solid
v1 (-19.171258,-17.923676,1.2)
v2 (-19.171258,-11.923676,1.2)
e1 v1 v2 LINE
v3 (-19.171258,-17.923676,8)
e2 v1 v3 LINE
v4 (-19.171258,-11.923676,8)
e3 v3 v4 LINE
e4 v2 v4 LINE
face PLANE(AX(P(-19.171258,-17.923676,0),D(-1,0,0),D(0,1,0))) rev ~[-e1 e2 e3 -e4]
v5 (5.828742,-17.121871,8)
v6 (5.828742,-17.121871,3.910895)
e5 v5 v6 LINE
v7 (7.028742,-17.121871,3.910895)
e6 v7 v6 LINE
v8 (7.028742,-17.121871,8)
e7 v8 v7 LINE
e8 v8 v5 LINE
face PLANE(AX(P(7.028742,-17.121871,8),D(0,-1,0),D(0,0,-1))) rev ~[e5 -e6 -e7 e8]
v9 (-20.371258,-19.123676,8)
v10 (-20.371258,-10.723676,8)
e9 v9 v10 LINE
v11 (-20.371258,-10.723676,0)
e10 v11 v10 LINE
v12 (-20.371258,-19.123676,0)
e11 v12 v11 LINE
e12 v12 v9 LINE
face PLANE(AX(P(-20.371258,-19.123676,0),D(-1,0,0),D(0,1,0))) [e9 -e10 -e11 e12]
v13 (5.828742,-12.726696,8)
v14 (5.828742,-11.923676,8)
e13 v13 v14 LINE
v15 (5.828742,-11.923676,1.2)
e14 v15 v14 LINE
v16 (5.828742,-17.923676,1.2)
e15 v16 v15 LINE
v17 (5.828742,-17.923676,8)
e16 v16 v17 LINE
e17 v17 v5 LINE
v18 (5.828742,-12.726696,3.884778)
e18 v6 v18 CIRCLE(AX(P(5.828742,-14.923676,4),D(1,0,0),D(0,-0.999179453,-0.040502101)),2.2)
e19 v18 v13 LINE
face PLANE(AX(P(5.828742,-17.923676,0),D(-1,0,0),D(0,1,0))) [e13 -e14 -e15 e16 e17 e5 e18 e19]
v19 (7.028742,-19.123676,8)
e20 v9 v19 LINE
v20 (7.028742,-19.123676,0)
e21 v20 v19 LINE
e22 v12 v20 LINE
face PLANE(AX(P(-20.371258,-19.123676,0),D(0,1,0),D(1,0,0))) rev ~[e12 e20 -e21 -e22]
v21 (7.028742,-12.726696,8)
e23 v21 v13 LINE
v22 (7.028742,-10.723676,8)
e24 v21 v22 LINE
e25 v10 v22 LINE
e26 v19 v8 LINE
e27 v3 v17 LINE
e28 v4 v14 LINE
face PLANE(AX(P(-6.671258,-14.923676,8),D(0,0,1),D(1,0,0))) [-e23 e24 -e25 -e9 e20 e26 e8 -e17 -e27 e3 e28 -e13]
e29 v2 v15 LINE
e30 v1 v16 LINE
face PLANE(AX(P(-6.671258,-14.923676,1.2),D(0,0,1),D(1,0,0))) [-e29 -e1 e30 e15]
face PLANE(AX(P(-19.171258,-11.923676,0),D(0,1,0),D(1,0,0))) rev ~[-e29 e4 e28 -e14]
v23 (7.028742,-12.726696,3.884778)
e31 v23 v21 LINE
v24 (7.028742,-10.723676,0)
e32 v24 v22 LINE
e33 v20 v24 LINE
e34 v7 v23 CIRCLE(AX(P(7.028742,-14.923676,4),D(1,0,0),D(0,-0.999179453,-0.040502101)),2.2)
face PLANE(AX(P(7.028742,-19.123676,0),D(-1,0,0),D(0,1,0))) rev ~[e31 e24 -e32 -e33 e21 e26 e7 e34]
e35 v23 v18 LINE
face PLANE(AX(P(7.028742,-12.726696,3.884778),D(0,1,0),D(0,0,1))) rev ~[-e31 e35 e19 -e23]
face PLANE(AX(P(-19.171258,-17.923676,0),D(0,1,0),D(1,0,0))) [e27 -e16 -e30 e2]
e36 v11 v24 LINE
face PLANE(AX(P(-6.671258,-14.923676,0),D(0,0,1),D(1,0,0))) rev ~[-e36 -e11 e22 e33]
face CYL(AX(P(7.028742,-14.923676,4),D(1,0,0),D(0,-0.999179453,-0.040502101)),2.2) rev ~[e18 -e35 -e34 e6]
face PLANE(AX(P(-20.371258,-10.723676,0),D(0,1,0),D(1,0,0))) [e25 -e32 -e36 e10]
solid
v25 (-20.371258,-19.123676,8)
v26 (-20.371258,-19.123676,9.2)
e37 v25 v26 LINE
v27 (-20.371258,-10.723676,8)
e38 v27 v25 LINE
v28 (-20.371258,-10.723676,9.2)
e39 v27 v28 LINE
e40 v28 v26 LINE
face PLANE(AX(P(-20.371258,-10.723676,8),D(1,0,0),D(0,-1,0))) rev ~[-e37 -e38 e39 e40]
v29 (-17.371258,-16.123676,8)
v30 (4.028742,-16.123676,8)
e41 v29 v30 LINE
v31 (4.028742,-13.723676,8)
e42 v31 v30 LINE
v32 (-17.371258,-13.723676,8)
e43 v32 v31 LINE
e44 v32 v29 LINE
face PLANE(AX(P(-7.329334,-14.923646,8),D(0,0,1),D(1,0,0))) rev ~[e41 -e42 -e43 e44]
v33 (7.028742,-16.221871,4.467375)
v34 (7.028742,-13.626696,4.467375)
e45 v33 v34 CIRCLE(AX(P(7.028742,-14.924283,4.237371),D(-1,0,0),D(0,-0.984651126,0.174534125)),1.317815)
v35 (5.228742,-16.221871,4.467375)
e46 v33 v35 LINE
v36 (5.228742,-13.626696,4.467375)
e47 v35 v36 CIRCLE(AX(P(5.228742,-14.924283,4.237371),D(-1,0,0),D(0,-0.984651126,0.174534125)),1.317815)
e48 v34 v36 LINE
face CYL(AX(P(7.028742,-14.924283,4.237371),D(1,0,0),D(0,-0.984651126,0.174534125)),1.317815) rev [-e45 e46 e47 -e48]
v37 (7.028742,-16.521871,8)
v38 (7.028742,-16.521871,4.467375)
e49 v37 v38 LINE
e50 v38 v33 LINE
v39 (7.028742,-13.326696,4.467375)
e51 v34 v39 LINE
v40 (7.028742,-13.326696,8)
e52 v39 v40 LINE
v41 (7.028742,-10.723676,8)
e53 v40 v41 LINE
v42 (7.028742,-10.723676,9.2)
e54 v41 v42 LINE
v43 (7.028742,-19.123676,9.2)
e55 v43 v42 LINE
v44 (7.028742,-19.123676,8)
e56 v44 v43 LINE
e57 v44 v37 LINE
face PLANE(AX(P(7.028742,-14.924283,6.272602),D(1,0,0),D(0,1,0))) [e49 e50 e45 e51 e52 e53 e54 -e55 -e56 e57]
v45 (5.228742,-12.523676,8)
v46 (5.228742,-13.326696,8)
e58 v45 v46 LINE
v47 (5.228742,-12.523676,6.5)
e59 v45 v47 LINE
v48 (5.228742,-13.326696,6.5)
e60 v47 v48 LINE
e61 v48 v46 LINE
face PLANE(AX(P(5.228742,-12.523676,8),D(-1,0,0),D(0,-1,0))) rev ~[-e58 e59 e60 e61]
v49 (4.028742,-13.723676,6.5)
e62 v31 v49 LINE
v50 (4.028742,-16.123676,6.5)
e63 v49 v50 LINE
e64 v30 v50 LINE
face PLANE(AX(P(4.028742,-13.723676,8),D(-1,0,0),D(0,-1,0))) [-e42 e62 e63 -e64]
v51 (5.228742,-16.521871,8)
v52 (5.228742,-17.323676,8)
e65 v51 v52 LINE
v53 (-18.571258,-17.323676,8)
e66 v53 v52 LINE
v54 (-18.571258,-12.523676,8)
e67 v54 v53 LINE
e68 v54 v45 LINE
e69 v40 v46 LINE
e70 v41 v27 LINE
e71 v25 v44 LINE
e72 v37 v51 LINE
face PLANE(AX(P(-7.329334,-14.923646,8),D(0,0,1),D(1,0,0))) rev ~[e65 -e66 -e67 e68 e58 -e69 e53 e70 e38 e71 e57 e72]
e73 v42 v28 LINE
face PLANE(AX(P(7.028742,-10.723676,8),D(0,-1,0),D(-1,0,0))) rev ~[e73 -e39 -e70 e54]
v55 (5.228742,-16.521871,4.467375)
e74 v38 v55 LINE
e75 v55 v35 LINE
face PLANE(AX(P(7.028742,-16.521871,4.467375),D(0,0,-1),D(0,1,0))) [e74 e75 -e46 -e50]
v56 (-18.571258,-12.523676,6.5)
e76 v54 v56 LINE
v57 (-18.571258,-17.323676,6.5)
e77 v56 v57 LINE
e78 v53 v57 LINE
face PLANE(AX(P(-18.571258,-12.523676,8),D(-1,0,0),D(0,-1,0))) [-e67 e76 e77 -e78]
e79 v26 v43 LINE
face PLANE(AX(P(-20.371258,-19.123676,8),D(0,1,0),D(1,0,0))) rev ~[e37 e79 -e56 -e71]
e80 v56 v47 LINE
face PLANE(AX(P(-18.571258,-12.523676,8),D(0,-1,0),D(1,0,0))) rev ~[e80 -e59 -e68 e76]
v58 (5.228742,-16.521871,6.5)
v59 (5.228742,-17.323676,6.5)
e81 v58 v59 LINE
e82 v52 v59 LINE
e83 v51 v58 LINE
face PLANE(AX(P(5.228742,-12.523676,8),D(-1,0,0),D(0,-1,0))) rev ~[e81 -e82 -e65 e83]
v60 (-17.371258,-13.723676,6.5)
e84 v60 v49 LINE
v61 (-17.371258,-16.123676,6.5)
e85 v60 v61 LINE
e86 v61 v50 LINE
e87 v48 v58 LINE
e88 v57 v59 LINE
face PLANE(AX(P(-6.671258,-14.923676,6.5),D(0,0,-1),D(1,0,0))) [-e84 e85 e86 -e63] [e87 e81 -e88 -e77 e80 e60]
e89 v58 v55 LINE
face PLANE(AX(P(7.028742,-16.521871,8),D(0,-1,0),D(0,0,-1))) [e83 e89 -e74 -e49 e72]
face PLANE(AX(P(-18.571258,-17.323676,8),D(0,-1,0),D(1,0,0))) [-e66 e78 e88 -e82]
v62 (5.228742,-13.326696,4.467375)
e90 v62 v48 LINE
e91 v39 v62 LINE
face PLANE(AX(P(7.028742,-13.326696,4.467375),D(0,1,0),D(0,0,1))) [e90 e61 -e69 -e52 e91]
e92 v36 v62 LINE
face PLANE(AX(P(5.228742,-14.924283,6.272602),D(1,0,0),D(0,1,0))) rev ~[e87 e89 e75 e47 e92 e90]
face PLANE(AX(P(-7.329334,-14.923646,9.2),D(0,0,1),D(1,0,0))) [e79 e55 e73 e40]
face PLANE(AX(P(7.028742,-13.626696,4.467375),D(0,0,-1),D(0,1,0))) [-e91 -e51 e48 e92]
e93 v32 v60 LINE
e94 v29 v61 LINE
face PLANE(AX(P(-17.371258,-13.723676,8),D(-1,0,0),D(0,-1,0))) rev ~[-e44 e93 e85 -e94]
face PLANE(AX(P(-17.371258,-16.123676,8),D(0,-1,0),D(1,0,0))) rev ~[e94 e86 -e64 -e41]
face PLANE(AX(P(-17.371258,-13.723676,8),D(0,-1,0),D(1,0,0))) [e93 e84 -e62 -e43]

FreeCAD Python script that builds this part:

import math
import FreeCAD as App
import Part
import Sketcher
from FreeCAD import Vector

doc = App.newDocument("Part")
body = doc.addObject("PartDesign::Body", "Body")

# Sketch on XY plane
sketch1 = body.newObject("Sketcher::SketchObject", "Sketch")
sketch1.AttachmentSupport = (doc.getObject("XY_Plane"), [""])
sketch1.MapMode = "FlatFace"
sketch1.addGeometry([
    Part.LineSegment(Vector(-19.171258, -11.923676, 0), Vector(-19.171258, -17.923676, 0)),
    Part.LineSegment(Vector(-19.171258, -17.923676, 0), Vector(5.828742, -17.923676, 0)),
    Part.LineSegment(Vector(5.828742, -17.923676, 0), Vector(5.828742, -11.923676, 0)),
    Part.LineSegment(Vector(5.828742, -11.923676, 0), Vector(-19.171258, -11.923676, 0)),
], False)
sketch1.addConstraint([
    Sketcher.Constraint("Coincident", 0, 2, 1, 1),
    Sketcher.Constraint("Coincident", 1, 2, 2, 1),
    Sketcher.Constraint("Coincident", 2, 2, 3, 1),
    Sketcher.Constraint("Coincident", 3, 2, 0, 1),
    Sketcher.Constraint("Vertical", 0),
    Sketcher.Constraint("Horizontal", 1),
    Sketcher.Constraint("Vertical", 2),
    Sketcher.Constraint("Horizontal", 3),
    Sketcher.Constraint("DistanceX", 1, 1, 1, 2, 25.0),
    Sketcher.Constraint("DistanceY", 0, 2, 0, 1, 6.0),
    Sketcher.Constraint("DistanceX", 0, 2, -1, 1, 19.171258),
    Sketcher.Constraint("DistanceY", 0, 2, -1, 1, 17.923676),
])
pad1 = body.newObject("PartDesign::Pad", "Pad")
pad1.Profile = sketch1
pad1.Length = 1.2

# Sketch on XY plane
sketch2 = body.newObject("Sketcher::SketchObject", "Sketch001")
sketch2.AttachmentSupport = (doc.getObject("XY_Plane"), [""])
sketch2.MapMode = "FlatFace"
sketch2.addGeometry([
    Part.LineSegment(Vector(-20.371258, -10.723676, 0), Vector(-20.371258, -19.123676, 0)),  # 0
    Part.LineSegment(Vector(-20.371258, -19.123676, 0), Vector(7.028742, -19.123676, 0)),  # 1
    Part.LineSegment(Vector(7.028742, -19.123676, 0), Vector(7.028742, -10.723676, 0)),  # 2
    Part.LineSegment(Vector(7.028742, -10.723676, 0), Vector(-20.371258, -10.723676, 0)),  # 3
    Part.LineSegment(Vector(5.828742, -17.923676, 0), Vector(-19.171258, -17.923676, 0)),  # 4
    Part.LineSegment(Vector(-19.171258, -17.923676, 0), Vector(-19.171258, -11.923676, 0)),  # 5
    Part.LineSegment(Vector(-19.171258, -11.923676, 0), Vector(5.828742, -11.923676, 0)),  # 6
    Part.LineSegment(Vector(5.828742, -11.923676, 0), Vector(5.828742, -17.923676, 0)),  # 7
], False)
sketch2.addConstraint([
    Sketcher.Constraint("Coincident", 0, 2, 1, 1),
    Sketcher.Constraint("Coincident", 1, 2, 2, 1),
    Sketcher.Constraint("Coincident", 2, 2, 3, 1),
    Sketcher.Constraint("Coincident", 3, 2, 0, 1),
    Sketcher.Constraint("Coincident", 4, 2, 5, 1),
    Sketcher.Constraint("Coincident", 5, 2, 6, 1),
    Sketcher.Constraint("Coincident", 6, 2, 7, 1),
    Sketcher.Constraint("Coincident", 7, 2, 4, 1),
    Sketcher.Constraint("Vertical", 0),
    Sketcher.Constraint("Horizontal", 1),
    Sketcher.Constraint("Vertical", 2),
    Sketcher.Constraint("Horizontal", 3),
    Sketcher.Constraint("Horizontal", 4),
    Sketcher.Constraint("Vertical", 5),
    Sketcher.Constraint("Horizontal", 6),
    Sketcher.Constraint("Vertical", 7),
    Sketcher.Constraint("DistanceX", 4, 2, 4, 1, 25.0),
    Sketcher.Constraint("DistanceY", 5, 1, 5, 2, 6.0),
    Sketcher.Constraint("DistanceX", 1, 1, 1, 2, 27.4),
    Sketcher.Constraint("DistanceY", 0, 2, 0, 1, 8.4),
    Sketcher.Constraint("DistanceX", 0, 2, 4, 2, 1.2),
    Sketcher.Constraint("DistanceY", 0, 2, 4, 2, 1.2),
    Sketcher.Constraint("DistanceX", 0, 2, -1, 1, 20.371258),
    Sketcher.Constraint("DistanceY", 0, 2, -1, 1, 19.123676),
])
pad2 = body.newObject("PartDesign::Pad", "Pad001")
pad2.Profile = sketch2
pad2.Length = 8

# Sketch on YZ plane
sketch3 = body.newObject("Sketcher::SketchObject", "Sketch002")
sketch3.AttachmentSupport = (doc.getObject("YZ_Plane"), [""])
sketch3.MapMode = "FlatFace"
sketch3.AttachmentOffset = App.Placement(Vector(0, 0, 7.028742), App.Rotation())
sketch3.addGeometry([
    Part.LineSegment(Vector(-17.121871, 8, 0), Vector(-17.121871, 3.910895, 0)),
    Part.ArcOfCircle(Part.Circle(Vector(-14.923676, 4, 0), Vector(0, 0, 1), 2.2), math.radians(-177.678766), math.radians(-3.002153)),
    Part.LineSegment(Vector(-12.726696, 3.884778, 0), Vector(-12.726696, 8, 0)),
    Part.LineSegment(Vector(-12.726696, 8, 0), Vector(-17.121871, 8, 0)),
], False)
sketch3.addConstraint([
    Sketcher.Constraint("Coincident", 0, 2, 1, 1),
    Sketcher.Constraint("Coincident", 1, 2, 2, 1),
    Sketcher.Constraint("Coincident", 2, 2, 3, 1),
    Sketcher.Constraint("Coincident", 3, 2, 0, 1),
    Sketcher.Constraint("Vertical", 0),
    Sketcher.Constraint("Vertical", 2),
    Sketcher.Constraint("Horizontal", 3),
    Sketcher.Constraint("Radius", 1, 2.2),
    Sketcher.Constraint("DistanceY", -1, 1, 1, 3, 4.0),
    Sketcher.Constraint("DistanceY", -1, 1, 2, 2, 8.0),
    Sketcher.Constraint("DistanceY", 2, 1, 2, 2, 4.115222),
    Sketcher.Constraint("DistanceX", 3, 2, 3, 1, 4.395175),
    Sketcher.Constraint("DistanceX", 0, 2, -1, 1, 17.121871),
])
pocket1 = body.newObject("PartDesign::Pocket", "Pocket")
pocket1.Profile = sketch3
pocket1.Length = 1.2
body2 = doc.addObject("PartDesign::Body", "Body001")

# Sketch on XY plane
sketch4 = body2.newObject("Sketcher::SketchObject", "Sketch003")
sketch4.AttachmentSupport = (doc.getObject("XY_Plane001"), [""])
sketch4.MapMode = "FlatFace"
sketch4.AttachmentOffset = App.Placement(Vector(0, 0, 8), App.Rotation())
sketch4.addGeometry([
    Part.LineSegment(Vector(7.028742, -10.723676, 0), Vector(-20.371258, -10.723676, 0)),
    Part.LineSegment(Vector(-20.371258, -10.723676, 0), Vector(-20.371258, -19.123676, 0)),
    Part.LineSegment(Vector(-20.371258, -19.123676, 0), Vector(7.028742, -19.123676, 0)),
    Part.LineSegment(Vector(7.028742, -19.123676, 0), Vector(7.028742, -10.723676, 0)),
], False)
sketch4.addConstraint([
    Sketcher.Constraint("Coincident", 0, 2, 1, 1),
    Sketcher.Constraint("Coincident", 1, 2, 2, 1),
    Sketcher.Constraint("Coincident", 2, 2, 3, 1),
    Sketcher.Constraint("Coincident", 3, 2, 0, 1),
    Sketcher.Constraint("Horizontal", 0),
    Sketcher.Constraint("Vertical", 1),
    Sketcher.Constraint("Horizontal", 2),
    Sketcher.Constraint("Vertical", 3),
    Sketcher.Constraint("DistanceX", 0, 2, 0, 1, 27.4),
    Sketcher.Constraint("DistanceY", 1, 2, 1, 1, 8.4),
    Sketcher.Constraint("DistanceX", 0, 2, -1, 1, 20.371258),
    Sketcher.Constraint("DistanceY", 0, 2, -1, 1, 10.723676),
])
pad3 = body2.newObject("PartDesign::Pad", "Pad002")
pad3.Profile = sketch4
pad3.Length = 1.2

# Sketch on XY plane
sketch5 = body2.newObject("Sketcher::SketchObject", "Sketch004")
sketch5.AttachmentSupport = (doc.getObject("XY_Plane001"), [""])
sketch5.MapMode = "FlatFace"
sketch5.AttachmentOffset = App.Placement(Vector(0, 0, 8), App.Rotation())
sketch5.addGeometry([
    Part.LineSegment(Vector(-18.571258, -17.323676, 0), Vector(-18.571258, -12.523676, 0)),  # 0
    Part.LineSegment(Vector(-18.571258, -12.523676, 0), Vector(5.228742, -12.523676, 0)),  # 1
    Part.LineSegment(Vector(5.228742, -12.523676, 0), Vector(5.228742, -17.323676, 0)),  # 2
    Part.LineSegment(Vector(5.228742, -17.323676, 0), Vector(-18.571258, -17.323676, 0)),  # 3
    Part.LineSegment(Vector(4.028742, -13.723676, 0), Vector(-17.371258, -13.723676, 0)),  # 4
    Part.LineSegment(Vector(-17.371258, -13.723676, 0), Vector(-17.371258, -16.123676, 0)),  # 5
    Part.LineSegment(Vector(-17.371258, -16.123676, 0), Vector(4.028742, -16.123676, 0)),  # 6
    Part.LineSegment(Vector(4.028742, -16.123676, 0), Vector(4.028742, -13.723676, 0)),  # 7
], False)
sketch5.addConstraint([
    Sketcher.Constraint("Coincident", 0, 2, 1, 1),
    Sketcher.Constraint("Coincident", 1, 2, 2, 1),
    Sketcher.Constraint("Coincident", 2, 2, 3, 1),
    Sketcher.Constraint("Coincident", 3, 2, 0, 1),
    Sketcher.Constraint("Coincident", 4, 2, 5, 1),
    Sketcher.Constraint("Coincident", 5, 2, 6, 1),
    Sketcher.Constraint("Coincident", 6, 2, 7, 1),
    Sketcher.Constraint("Coincident", 7, 2, 4, 1),
    Sketcher.Constraint("Vertical", 0),
    Sketcher.Constraint("Horizontal", 1),
    Sketcher.Constraint("Vertical", 2),
    Sketcher.Constraint("Horizontal", 3),
    Sketcher.Constraint("Horizontal", 4),
    Sketcher.Constraint("Vertical", 5),
    Sketcher.Constraint("Horizontal", 6),
    Sketcher.Constraint("Vertical", 7),
    Sketcher.Constraint("DistanceX", 1, 1, 1, 2, 23.8),
    Sketcher.Constraint("DistanceX", 4, 2, 4, 1, 21.4),
    Sketcher.Constraint("DistanceY", 0, 1, 0, 2, 4.8),
    Sketcher.Constraint("DistanceY", 5, 2, 5, 1, 2.4),
    Sketcher.Constraint("DistanceX", 0, 2, 4, 2, 1.2),
    Sketcher.Constraint("DistanceY", 4, 2, 0, 2, 1.2),
    Sketcher.Constraint("DistanceX", 0, 2, -1, 1, 18.571258),
    Sketcher.Constraint("DistanceY", 0, 2, -1, 1, 12.523676),
])
pad4 = body2.newObject("PartDesign::Pad", "Pad003")
pad4.Profile = sketch5
pad4.Length = 1.5
pad4.Reversed = True

# Sketch on YZ plane
sketch6 = body2.newObject("Sketcher::SketchObject", "Sketch005")
sketch6.AttachmentSupport = (doc.getObject("YZ_Plane001"), [""])
sketch6.MapMode = "FlatFace"
sketch6.AttachmentOffset = App.Placement(Vector(0, 0, 7.028742), App.Rotation())
sketch6.addGeometry([
    Part.LineSegment(Vector(-13.626696, 4.467375, 0), Vector(-13.326696, 4.467375, 0)),  # 0
    Part.LineSegment(Vector(-13.326696, 4.467375, 0), Vector(-13.326696, 8, 0)),  # 1
    Part.LineSegment(Vector(-13.326696, 8, 0), Vector(-16.521871, 8, 0)),  # 2
    Part.LineSegment(Vector(-16.521871, 8, 0), Vector(-16.521871, 4.467375, 0)),  # 3
    Part.LineSegment(Vector(-16.521871, 4.467375, 0), Vector(-16.221871, 4.467375, 0)),  # 4
    Part.ArcOfCircle(Part.Circle(Vector(-14.924283, 4.237371, 0), Vector(0, 0, 1), 1.317815), math.radians(10.051548), math.radians(169.948452)),  # 5
], False)
sketch6.addConstraint([
    Sketcher.Constraint("Coincident", 0, 2, 1, 1),
    Sketcher.Constraint("Coincident", 1, 2, 2, 1),
    Sketcher.Constraint("Coincident", 2, 2, 3, 1),
    Sketcher.Constraint("Coincident", 3, 2, 4, 1),
    Sketcher.Constraint("Coincident", 4, 2, 5, 2),
    Sketcher.Constraint("Coincident", 5, 1, 0, 1),
    Sketcher.Constraint("Horizontal", 0),
    Sketcher.Constraint("Vertical", 1),
    Sketcher.Constraint("Horizontal", 2),
    Sketcher.Constraint("Vertical", 3),
    Sketcher.Constraint("Horizontal", 4),
    Sketcher.Constraint("Horizontal", 0, 2, 3, 2),
    Sketcher.Constraint("Equal", 0, 4),
    Sketcher.Constraint("DistanceX", 0, 1, 0, 2, 0.3),
    Sketcher.Constraint("DistanceY", -1, 1, 1, 2, 8.0),
    Sketcher.Constraint("Radius", 5, 1.317815),
    Sketcher.Constraint("DistanceX", 2, 2, 2, 1, 3.195175),
    Sketcher.Constraint("DistanceY", 1, 1, 1, 2, 3.532625),
    Sketcher.Constraint("DistanceX", 2, 2, -1, 1, 16.521871),
])
pad5 = body2.newObject("PartDesign::Pad", "Pad004")
pad5.Profile = sketch6
pad5.Length = 1.8
pad5.Reversed = True

doc.recompute()
